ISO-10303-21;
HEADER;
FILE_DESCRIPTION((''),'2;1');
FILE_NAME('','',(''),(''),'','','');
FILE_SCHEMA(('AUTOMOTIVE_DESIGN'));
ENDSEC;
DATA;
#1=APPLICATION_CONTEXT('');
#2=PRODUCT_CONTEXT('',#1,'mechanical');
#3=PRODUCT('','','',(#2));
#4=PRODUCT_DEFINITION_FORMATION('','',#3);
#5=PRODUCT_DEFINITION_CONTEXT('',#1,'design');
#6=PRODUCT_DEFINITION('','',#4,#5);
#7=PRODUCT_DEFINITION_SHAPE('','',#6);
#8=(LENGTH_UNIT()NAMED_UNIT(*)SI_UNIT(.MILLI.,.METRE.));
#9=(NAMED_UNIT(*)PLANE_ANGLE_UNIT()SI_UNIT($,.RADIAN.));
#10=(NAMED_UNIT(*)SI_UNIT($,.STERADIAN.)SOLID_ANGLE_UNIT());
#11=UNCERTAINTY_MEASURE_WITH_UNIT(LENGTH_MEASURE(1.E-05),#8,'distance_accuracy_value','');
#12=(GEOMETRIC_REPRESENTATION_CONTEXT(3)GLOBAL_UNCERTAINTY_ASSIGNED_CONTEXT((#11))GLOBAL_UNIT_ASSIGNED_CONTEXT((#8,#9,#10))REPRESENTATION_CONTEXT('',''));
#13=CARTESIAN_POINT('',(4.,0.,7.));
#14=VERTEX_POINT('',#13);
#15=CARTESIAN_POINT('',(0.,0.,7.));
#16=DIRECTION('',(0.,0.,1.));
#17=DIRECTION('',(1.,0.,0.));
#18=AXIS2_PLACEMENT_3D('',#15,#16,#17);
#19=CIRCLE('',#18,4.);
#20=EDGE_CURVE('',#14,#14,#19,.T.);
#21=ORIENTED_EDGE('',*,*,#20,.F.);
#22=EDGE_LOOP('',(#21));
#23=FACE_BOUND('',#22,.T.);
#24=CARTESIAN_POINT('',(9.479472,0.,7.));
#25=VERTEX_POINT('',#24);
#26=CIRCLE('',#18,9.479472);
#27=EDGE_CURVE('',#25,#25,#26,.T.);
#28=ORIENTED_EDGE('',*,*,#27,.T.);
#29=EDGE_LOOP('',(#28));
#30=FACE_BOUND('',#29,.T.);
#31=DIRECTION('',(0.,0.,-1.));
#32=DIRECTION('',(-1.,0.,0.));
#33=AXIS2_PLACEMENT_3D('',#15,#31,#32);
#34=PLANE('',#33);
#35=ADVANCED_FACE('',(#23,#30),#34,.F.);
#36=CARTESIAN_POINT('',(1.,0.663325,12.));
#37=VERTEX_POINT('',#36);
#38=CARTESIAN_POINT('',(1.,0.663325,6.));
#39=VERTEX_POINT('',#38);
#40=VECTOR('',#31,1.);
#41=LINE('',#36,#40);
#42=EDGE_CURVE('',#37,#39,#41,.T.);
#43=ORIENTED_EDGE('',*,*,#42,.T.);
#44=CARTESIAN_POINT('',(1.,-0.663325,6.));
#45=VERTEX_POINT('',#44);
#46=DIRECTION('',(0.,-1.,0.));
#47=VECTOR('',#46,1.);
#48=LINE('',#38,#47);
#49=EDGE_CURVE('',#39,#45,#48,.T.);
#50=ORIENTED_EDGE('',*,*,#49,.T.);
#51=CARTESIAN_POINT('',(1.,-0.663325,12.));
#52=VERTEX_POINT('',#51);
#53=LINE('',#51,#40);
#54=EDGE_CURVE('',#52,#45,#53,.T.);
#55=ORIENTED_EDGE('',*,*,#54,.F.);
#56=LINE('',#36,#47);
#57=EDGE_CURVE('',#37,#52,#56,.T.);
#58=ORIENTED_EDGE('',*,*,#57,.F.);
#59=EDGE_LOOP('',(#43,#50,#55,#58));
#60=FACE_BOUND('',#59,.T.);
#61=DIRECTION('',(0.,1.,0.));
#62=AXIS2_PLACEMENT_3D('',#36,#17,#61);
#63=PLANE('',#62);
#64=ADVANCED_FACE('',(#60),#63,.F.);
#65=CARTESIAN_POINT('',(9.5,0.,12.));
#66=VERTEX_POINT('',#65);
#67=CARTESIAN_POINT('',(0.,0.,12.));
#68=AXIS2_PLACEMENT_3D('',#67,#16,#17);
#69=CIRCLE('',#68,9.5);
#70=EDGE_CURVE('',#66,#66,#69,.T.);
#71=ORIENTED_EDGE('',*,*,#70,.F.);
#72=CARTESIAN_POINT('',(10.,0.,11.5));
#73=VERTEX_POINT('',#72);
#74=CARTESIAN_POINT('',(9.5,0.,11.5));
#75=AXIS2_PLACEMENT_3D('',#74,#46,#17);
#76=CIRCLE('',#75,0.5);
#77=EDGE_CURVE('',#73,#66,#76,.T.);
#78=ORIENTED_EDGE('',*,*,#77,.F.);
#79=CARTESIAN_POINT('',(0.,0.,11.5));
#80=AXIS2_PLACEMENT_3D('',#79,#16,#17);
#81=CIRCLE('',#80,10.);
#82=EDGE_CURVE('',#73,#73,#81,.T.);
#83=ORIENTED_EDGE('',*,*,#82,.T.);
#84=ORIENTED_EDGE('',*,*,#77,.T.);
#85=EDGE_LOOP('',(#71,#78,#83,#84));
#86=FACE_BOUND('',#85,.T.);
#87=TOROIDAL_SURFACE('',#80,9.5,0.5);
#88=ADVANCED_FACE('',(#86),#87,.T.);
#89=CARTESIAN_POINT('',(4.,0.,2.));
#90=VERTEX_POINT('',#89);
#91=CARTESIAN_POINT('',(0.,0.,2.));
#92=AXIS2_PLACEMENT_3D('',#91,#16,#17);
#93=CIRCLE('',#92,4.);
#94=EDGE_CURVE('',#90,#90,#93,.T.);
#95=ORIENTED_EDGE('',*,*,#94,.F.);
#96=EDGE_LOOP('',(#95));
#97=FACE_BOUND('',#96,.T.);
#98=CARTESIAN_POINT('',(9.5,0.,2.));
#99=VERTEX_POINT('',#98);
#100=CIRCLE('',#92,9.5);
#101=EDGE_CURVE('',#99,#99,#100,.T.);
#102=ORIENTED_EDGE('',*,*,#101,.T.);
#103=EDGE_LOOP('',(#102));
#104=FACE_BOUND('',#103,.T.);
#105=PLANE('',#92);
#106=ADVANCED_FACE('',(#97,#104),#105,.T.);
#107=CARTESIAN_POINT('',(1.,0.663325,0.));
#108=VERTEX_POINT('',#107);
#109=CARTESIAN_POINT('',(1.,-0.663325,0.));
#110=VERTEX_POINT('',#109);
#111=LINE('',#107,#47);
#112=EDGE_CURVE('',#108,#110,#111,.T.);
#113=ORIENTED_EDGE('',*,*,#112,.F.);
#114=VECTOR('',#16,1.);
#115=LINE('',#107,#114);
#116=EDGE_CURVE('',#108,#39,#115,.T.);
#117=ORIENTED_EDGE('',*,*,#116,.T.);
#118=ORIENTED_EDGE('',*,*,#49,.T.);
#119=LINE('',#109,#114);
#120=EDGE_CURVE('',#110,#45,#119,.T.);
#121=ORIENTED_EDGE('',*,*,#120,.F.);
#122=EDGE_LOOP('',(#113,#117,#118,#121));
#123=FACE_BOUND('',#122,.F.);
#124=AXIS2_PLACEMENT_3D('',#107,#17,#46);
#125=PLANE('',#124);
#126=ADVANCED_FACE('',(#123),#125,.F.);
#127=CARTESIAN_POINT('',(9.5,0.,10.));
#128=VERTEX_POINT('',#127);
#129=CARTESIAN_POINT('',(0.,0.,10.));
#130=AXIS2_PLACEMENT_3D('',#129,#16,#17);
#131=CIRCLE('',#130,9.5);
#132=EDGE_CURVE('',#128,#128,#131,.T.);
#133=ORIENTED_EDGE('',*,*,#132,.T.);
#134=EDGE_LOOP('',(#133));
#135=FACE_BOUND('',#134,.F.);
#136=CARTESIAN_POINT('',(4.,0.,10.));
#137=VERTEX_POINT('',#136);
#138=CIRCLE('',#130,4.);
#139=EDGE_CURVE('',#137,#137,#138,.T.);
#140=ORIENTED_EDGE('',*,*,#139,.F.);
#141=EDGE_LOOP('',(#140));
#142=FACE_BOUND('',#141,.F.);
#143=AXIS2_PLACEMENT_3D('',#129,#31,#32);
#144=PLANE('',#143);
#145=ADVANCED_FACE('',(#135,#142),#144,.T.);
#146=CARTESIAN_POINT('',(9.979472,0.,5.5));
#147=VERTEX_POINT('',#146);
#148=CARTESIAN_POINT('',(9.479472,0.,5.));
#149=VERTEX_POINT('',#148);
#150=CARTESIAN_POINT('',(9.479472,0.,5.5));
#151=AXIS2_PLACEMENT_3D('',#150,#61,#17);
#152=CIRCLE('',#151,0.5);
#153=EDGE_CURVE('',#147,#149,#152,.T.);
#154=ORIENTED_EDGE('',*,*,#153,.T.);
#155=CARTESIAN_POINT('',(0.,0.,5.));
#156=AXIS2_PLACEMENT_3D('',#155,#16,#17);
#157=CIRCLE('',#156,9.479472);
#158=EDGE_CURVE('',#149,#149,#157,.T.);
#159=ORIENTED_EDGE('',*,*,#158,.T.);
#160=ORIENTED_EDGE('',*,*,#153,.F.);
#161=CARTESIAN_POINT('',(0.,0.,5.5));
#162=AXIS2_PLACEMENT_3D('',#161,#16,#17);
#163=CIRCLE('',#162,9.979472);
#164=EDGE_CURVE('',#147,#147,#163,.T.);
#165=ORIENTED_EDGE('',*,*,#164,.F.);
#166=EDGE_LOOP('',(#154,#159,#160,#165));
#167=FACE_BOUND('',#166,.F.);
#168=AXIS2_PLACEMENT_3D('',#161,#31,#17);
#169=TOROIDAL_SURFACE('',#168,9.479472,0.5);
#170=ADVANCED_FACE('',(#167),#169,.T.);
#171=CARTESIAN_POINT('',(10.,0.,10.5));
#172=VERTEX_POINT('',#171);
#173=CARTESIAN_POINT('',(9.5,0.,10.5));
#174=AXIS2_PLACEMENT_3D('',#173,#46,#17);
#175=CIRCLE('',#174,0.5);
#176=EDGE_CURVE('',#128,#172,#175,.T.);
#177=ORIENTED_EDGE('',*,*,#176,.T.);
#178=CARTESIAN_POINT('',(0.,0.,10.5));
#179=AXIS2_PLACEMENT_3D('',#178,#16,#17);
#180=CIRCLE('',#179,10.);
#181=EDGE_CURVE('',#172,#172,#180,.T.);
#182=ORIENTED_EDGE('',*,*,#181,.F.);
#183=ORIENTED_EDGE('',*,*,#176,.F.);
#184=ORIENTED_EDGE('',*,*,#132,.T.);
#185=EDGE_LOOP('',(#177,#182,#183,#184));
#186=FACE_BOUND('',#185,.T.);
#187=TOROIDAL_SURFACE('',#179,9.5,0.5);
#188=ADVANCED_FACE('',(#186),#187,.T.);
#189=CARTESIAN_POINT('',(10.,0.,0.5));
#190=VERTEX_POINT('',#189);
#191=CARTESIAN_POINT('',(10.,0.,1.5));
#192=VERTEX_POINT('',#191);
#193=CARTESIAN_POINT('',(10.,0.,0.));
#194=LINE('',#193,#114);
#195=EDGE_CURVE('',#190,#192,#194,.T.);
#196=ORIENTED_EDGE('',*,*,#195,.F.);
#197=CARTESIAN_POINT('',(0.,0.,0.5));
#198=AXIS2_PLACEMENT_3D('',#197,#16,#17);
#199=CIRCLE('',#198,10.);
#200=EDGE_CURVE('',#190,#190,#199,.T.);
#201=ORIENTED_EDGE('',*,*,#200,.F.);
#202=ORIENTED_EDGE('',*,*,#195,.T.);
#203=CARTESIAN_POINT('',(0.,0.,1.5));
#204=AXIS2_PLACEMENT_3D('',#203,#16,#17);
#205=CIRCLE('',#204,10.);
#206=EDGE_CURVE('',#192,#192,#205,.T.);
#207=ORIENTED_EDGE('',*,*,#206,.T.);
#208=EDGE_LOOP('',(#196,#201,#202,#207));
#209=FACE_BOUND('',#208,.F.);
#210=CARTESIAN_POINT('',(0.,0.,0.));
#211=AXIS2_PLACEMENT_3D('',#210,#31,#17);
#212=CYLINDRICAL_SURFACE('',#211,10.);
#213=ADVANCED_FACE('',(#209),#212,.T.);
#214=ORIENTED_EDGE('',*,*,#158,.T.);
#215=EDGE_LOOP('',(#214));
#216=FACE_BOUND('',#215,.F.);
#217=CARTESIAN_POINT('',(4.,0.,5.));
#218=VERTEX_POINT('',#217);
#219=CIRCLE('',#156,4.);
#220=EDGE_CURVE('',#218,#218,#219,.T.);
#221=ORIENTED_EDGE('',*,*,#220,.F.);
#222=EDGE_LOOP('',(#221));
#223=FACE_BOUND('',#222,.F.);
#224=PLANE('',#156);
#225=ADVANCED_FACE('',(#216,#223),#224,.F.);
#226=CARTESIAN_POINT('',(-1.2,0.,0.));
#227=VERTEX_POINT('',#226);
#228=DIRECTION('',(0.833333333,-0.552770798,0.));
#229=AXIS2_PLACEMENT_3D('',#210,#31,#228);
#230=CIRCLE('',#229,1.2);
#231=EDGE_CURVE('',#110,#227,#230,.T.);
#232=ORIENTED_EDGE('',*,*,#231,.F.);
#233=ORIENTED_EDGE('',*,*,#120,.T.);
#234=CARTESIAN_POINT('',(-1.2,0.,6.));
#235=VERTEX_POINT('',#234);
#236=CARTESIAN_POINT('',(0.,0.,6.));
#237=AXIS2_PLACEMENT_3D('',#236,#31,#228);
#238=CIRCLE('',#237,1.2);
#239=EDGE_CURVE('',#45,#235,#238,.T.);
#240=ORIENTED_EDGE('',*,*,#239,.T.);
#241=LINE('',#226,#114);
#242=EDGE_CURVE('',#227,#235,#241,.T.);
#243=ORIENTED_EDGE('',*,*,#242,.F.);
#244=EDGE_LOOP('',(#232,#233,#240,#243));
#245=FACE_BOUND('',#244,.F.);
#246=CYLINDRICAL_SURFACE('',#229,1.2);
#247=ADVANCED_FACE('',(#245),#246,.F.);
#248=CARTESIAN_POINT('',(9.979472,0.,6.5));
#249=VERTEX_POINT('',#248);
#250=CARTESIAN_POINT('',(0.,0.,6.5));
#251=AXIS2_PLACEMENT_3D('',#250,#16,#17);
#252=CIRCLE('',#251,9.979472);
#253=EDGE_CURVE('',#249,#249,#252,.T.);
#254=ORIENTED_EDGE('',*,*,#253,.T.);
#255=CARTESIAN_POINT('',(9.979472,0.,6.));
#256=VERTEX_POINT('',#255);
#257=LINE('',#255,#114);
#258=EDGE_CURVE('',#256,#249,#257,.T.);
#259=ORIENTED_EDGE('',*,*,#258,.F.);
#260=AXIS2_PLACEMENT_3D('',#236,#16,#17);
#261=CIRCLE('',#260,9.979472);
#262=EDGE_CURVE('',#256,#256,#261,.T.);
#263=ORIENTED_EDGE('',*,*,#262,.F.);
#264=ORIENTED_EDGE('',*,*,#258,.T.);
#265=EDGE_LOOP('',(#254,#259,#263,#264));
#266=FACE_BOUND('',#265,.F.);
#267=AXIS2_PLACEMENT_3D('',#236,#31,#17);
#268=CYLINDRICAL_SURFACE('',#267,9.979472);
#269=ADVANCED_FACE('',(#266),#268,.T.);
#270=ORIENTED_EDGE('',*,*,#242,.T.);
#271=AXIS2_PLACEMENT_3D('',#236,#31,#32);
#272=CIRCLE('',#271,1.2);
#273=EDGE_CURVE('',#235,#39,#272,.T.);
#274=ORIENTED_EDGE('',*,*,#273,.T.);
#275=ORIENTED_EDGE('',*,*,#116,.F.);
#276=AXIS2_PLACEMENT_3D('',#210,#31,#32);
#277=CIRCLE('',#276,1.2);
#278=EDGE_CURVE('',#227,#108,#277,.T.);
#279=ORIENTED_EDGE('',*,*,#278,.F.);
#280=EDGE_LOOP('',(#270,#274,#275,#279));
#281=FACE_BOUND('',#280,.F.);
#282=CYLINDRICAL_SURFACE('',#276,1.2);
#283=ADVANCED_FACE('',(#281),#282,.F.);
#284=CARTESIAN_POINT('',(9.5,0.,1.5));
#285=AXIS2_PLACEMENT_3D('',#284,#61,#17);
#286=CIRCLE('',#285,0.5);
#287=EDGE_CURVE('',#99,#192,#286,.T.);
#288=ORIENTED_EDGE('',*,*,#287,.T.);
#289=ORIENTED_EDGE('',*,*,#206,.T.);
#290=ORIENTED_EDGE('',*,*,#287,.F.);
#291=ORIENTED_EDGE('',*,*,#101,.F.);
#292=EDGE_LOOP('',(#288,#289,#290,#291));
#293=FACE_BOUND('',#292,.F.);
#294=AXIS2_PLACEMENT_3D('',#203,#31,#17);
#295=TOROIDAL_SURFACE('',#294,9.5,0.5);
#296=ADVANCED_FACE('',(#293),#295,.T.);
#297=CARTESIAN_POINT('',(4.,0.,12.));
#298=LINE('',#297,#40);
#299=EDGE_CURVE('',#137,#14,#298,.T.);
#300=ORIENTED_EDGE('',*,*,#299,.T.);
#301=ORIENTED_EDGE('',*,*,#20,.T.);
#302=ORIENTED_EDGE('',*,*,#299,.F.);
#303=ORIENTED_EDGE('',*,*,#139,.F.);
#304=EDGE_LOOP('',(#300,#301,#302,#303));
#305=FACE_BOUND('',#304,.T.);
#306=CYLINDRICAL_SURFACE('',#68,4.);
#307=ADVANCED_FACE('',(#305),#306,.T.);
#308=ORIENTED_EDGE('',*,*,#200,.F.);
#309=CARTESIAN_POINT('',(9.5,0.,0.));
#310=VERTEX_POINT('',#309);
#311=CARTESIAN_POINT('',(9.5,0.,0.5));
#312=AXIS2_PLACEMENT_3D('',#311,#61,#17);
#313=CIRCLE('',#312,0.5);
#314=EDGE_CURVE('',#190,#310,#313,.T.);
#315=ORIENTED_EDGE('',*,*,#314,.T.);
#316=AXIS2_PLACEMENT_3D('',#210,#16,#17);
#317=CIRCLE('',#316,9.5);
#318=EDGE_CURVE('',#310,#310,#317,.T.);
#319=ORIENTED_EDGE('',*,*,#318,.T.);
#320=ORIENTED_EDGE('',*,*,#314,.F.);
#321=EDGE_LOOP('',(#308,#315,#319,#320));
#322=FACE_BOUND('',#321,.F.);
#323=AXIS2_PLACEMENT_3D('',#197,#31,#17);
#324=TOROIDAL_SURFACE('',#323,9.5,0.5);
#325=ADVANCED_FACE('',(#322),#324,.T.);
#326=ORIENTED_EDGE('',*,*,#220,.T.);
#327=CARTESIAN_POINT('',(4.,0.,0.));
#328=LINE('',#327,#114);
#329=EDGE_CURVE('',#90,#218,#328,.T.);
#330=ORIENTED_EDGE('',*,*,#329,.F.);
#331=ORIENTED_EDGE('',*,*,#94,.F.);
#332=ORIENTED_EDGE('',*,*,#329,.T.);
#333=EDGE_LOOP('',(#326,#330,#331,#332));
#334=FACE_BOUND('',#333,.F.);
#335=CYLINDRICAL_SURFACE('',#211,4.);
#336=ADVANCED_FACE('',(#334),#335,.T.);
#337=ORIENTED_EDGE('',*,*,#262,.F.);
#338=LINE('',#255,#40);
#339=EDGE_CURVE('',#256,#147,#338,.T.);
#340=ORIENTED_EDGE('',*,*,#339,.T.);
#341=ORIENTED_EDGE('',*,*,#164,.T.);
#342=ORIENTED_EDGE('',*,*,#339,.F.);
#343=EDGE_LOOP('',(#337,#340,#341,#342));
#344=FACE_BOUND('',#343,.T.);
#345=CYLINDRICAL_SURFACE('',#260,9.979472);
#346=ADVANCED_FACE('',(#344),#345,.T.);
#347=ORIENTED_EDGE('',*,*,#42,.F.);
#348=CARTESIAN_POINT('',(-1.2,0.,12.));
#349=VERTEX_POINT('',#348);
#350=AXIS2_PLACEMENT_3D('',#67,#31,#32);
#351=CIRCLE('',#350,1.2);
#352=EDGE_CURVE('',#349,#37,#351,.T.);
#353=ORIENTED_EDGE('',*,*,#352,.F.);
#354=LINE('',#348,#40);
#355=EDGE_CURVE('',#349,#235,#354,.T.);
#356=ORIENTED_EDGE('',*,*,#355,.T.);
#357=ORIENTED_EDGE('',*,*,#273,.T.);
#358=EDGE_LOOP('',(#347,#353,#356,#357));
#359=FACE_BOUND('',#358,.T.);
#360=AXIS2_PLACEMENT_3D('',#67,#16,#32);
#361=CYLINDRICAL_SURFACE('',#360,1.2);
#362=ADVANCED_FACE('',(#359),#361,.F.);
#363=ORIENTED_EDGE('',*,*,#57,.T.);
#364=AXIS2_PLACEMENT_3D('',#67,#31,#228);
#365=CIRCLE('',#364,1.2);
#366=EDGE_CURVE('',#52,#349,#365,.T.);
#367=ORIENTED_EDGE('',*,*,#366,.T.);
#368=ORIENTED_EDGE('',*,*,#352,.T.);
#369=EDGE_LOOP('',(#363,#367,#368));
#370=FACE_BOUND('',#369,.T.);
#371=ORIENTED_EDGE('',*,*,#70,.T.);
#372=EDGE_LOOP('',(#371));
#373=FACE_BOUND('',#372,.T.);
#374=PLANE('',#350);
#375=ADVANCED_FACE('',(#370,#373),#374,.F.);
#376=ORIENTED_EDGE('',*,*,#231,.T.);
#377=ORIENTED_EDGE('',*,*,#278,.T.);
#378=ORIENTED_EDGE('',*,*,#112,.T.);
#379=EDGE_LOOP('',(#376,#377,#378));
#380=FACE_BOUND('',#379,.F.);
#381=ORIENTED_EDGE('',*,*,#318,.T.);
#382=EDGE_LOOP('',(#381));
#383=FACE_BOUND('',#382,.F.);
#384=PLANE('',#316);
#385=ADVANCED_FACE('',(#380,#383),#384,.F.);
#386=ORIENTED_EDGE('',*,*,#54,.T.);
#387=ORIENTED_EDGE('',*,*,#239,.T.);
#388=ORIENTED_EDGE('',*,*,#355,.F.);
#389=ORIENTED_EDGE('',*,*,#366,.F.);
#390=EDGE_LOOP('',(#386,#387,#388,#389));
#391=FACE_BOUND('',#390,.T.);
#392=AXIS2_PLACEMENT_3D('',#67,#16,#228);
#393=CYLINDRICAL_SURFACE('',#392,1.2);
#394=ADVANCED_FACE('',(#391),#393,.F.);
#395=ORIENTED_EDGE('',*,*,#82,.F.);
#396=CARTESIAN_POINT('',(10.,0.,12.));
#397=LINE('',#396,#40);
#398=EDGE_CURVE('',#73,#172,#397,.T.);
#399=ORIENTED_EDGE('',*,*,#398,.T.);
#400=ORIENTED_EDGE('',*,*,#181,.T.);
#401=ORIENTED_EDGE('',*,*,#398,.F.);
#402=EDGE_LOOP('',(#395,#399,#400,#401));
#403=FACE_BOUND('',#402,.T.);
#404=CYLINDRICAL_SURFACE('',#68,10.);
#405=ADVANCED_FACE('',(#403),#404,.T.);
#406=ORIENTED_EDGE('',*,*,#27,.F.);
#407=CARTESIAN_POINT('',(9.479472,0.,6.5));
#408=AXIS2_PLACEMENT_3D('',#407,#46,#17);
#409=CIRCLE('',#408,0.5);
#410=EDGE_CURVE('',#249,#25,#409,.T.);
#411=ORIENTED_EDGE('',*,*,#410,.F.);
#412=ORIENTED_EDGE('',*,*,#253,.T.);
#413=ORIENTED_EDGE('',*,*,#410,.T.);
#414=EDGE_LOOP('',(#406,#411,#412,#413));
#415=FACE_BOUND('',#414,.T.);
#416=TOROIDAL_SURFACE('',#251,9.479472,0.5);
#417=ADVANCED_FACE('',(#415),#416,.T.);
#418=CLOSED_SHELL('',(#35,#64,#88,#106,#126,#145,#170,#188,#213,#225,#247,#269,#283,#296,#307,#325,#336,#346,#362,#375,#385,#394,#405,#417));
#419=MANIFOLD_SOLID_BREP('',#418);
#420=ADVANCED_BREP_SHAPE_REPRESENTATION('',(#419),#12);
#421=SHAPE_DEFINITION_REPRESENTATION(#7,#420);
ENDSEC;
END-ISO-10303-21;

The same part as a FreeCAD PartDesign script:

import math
import FreeCAD as App
import Part
import Sketcher

V = App.Vector


def edges_at(feature, points):
    """Names of the edges that pass closest to the given points."""
    edges = feature.Shape.Edges
    near = lambda p: min(range(len(edges)), key=lambda i: edges[i].distToShape(Part.Vertex(*p))[0])
    return sorted({f"Edge{near(p) + 1}" for p in points})

doc = App.newDocument("Part")
params = doc.addObject("Spreadsheet::Sheet", "Params")
for row, (alias, value) in enumerate([
    ("sketch1_diameter", "20 mm"),
    ("sketch1_diameter2", "8 mm"),
    ("pad1_length", "2 mm"),
    ("sketch2_diameter", "8 mm"),
    ("sketch2_radius", "1.2 mm"),
    ("pad2_length", "6 mm"),
    ("sketch3_diameter", "8 mm"),
    ("pad3_length", "1 mm"),
    ("fillet_radius", "0.5 mm"),
], start=1):
    params.set(f"A{row}", alias)
    params.set(f"B{row}", "=" + value)
    params.setAlias(f"B{row}", alias)

body = doc.addObject("PartDesign::Body", "Body")

sketch1 = doc.addObject("Sketcher::SketchObject", "Sketch")
body.addObject(sketch1)
sketch1.AttachmentSupport = (doc.XY_Plane, [""])
sketch1.MapMode = "FlatFace"
sketch1.addGeometry([
    Part.Circle(V(0, 0, 0), V(0, 0, 1), 10),
    Part.Circle(V(0, 0, 0), V(0, 0, 1), 4),
], False)
sketch1.addConstraint([
    Sketcher.Constraint("Coincident", 0, 3, -1, 1),
    Sketcher.Constraint("Coincident", 1, 3, -1, 1),
    Sketcher.Constraint("Diameter", 0, 20.0),
    Sketcher.Constraint("Diameter", 1, 8.0),
])
sketch1.setExpression("Constraints[2]", "Params.sketch1_diameter")
sketch1.setExpression("Constraints[3]", "Params.sketch1_diameter2")
pad1 = doc.addObject("PartDesign::Pad", "Pad")
body.addObject(pad1)
pad1.Profile = sketch1
pad1.setExpression("Length", "Params.pad1_length")

sketch2 = doc.addObject("Sketcher::SketchObject", "Sketch001")
body.addObject(sketch2)
sketch2.AttachmentSupport = (doc.XY_Plane, [""])
sketch2.MapMode = "FlatFace"
sketch2.addGeometry([
    Part.Circle(V(0, 0, 0), V(0, 0, 1), 4),
    Part.ArcOfCircle(Part.Circle(V(0, 0, 0), V(0, 0, 1), 1.2), math.radians(34), math.radians(180)),
    Part.LineSegment(V(1, 0.7, 0), V(1, -0.7, 0)),
    Part.ArcOfCircle(Part.Circle(V(0, 0, 0), V(0, 0, 1), 1.2), math.radians(180), math.radians(326)),
], False)
sketch2.addConstraint([
    Sketcher.Constraint("Coincident", 1, 1, 2, 1),
    Sketcher.Constraint("Coincident", 2, 2, 3, 2),
    Sketcher.Constraint("Tangent", 3, 1, 1, 2),
    Sketcher.Constraint("Vertical", 2),
    Sketcher.Constraint("Coincident", 0, 3, -1, 1),
    Sketcher.Constraint("Coincident", 1, 3, -1, 1),
    Sketcher.Constraint("Equal", 1, 3),
    Sketcher.Constraint("PointOnObject", 3, 1, -1),
    Sketcher.Constraint("Diameter", 0, 8.0),
    Sketcher.Constraint("Radius", 1, 1.2),
    Sketcher.Constraint("DistanceX", -1, 1, 1, 1, 1.0),
])
sketch2.setExpression("Constraints[8]", "Params.sketch2_diameter")
sketch2.setExpression("Constraints[9]", "Params.sketch2_radius")
pad2 = doc.addObject("PartDesign::Pad", "Pad001")
body.addObject(pad2)
pad2.Profile = sketch2
pad2.setExpression("Length", "Params.pad2_length")

sketch3 = doc.addObject("Sketcher::SketchObject", "Sketch002")
body.addObject(sketch3)
sketch3.AttachmentSupport = (doc.XY_Plane, [""])
sketch3.MapMode = "FlatFace"
sketch3.AttachmentOffset = App.Placement(V(0, 0, 6), App.Rotation())
sketch3.addGeometry([
    Part.Circle(V(0, 0, 0), V(0, 0, 1), 10),
    Part.Circle(V(0, 0, 0), V(0, 0, 1), 4),
], False)
sketch3.addConstraint([
    Sketcher.Constraint("Coincident", 0, 3, -1, 1),
    Sketcher.Constraint("Coincident", 1, 3, -1, 1),
    Sketcher.Constraint("Diameter", 1, 8.0),
    Sketcher.Constraint("Diameter", 0, 19.958944),
])
sketch3.setExpression("Constraints[2]", "Params.sketch3_diameter")
pad3 = doc.addObject("PartDesign::Pad", "Pad002")
body.addObject(pad3)
pad3.Profile = sketch3
pad3.setExpression("Length", "Params.pad3_length")
pad3.Reversed = True
body2 = doc.addObject("PartDesign::Body", "Body001")
doc.recompute()

body2.BaseFeature = body
doc.recompute()

mirroring = doc.addObject("Part::Mirroring", "Mirroring")
mirroring.Source = body
mirroring.Base = V(0, 0, 6)
mirroring.Normal = V(0, 0, 1)
body3 = doc.addObject("PartDesign::Body", "Body002")
body3.BaseFeature = mirroring
boolean = doc.addObject("PartDesign::Boolean", "Boolean")
body2.addObject(boolean)
boolean.Type = "Fuse"
boolean.addObjects([body3])
doc.recompute()

fillet = doc.addObject("PartDesign::Fillet", "Fillet")
body2.addObject(fillet)
fillet.Base = (boolean, edges_at(boolean, [
    (-9.979, 0, 7),
    (-9.979, 0, 5),
    (-10, 0, 10),
    (-10, 0, 2),
    (-10, 0, 12),
    (-10, 0, 0),
]))
fillet.setExpression("Radius", "Params.fillet_radius")
mirroring.Visibility = False

doc.recompute()
